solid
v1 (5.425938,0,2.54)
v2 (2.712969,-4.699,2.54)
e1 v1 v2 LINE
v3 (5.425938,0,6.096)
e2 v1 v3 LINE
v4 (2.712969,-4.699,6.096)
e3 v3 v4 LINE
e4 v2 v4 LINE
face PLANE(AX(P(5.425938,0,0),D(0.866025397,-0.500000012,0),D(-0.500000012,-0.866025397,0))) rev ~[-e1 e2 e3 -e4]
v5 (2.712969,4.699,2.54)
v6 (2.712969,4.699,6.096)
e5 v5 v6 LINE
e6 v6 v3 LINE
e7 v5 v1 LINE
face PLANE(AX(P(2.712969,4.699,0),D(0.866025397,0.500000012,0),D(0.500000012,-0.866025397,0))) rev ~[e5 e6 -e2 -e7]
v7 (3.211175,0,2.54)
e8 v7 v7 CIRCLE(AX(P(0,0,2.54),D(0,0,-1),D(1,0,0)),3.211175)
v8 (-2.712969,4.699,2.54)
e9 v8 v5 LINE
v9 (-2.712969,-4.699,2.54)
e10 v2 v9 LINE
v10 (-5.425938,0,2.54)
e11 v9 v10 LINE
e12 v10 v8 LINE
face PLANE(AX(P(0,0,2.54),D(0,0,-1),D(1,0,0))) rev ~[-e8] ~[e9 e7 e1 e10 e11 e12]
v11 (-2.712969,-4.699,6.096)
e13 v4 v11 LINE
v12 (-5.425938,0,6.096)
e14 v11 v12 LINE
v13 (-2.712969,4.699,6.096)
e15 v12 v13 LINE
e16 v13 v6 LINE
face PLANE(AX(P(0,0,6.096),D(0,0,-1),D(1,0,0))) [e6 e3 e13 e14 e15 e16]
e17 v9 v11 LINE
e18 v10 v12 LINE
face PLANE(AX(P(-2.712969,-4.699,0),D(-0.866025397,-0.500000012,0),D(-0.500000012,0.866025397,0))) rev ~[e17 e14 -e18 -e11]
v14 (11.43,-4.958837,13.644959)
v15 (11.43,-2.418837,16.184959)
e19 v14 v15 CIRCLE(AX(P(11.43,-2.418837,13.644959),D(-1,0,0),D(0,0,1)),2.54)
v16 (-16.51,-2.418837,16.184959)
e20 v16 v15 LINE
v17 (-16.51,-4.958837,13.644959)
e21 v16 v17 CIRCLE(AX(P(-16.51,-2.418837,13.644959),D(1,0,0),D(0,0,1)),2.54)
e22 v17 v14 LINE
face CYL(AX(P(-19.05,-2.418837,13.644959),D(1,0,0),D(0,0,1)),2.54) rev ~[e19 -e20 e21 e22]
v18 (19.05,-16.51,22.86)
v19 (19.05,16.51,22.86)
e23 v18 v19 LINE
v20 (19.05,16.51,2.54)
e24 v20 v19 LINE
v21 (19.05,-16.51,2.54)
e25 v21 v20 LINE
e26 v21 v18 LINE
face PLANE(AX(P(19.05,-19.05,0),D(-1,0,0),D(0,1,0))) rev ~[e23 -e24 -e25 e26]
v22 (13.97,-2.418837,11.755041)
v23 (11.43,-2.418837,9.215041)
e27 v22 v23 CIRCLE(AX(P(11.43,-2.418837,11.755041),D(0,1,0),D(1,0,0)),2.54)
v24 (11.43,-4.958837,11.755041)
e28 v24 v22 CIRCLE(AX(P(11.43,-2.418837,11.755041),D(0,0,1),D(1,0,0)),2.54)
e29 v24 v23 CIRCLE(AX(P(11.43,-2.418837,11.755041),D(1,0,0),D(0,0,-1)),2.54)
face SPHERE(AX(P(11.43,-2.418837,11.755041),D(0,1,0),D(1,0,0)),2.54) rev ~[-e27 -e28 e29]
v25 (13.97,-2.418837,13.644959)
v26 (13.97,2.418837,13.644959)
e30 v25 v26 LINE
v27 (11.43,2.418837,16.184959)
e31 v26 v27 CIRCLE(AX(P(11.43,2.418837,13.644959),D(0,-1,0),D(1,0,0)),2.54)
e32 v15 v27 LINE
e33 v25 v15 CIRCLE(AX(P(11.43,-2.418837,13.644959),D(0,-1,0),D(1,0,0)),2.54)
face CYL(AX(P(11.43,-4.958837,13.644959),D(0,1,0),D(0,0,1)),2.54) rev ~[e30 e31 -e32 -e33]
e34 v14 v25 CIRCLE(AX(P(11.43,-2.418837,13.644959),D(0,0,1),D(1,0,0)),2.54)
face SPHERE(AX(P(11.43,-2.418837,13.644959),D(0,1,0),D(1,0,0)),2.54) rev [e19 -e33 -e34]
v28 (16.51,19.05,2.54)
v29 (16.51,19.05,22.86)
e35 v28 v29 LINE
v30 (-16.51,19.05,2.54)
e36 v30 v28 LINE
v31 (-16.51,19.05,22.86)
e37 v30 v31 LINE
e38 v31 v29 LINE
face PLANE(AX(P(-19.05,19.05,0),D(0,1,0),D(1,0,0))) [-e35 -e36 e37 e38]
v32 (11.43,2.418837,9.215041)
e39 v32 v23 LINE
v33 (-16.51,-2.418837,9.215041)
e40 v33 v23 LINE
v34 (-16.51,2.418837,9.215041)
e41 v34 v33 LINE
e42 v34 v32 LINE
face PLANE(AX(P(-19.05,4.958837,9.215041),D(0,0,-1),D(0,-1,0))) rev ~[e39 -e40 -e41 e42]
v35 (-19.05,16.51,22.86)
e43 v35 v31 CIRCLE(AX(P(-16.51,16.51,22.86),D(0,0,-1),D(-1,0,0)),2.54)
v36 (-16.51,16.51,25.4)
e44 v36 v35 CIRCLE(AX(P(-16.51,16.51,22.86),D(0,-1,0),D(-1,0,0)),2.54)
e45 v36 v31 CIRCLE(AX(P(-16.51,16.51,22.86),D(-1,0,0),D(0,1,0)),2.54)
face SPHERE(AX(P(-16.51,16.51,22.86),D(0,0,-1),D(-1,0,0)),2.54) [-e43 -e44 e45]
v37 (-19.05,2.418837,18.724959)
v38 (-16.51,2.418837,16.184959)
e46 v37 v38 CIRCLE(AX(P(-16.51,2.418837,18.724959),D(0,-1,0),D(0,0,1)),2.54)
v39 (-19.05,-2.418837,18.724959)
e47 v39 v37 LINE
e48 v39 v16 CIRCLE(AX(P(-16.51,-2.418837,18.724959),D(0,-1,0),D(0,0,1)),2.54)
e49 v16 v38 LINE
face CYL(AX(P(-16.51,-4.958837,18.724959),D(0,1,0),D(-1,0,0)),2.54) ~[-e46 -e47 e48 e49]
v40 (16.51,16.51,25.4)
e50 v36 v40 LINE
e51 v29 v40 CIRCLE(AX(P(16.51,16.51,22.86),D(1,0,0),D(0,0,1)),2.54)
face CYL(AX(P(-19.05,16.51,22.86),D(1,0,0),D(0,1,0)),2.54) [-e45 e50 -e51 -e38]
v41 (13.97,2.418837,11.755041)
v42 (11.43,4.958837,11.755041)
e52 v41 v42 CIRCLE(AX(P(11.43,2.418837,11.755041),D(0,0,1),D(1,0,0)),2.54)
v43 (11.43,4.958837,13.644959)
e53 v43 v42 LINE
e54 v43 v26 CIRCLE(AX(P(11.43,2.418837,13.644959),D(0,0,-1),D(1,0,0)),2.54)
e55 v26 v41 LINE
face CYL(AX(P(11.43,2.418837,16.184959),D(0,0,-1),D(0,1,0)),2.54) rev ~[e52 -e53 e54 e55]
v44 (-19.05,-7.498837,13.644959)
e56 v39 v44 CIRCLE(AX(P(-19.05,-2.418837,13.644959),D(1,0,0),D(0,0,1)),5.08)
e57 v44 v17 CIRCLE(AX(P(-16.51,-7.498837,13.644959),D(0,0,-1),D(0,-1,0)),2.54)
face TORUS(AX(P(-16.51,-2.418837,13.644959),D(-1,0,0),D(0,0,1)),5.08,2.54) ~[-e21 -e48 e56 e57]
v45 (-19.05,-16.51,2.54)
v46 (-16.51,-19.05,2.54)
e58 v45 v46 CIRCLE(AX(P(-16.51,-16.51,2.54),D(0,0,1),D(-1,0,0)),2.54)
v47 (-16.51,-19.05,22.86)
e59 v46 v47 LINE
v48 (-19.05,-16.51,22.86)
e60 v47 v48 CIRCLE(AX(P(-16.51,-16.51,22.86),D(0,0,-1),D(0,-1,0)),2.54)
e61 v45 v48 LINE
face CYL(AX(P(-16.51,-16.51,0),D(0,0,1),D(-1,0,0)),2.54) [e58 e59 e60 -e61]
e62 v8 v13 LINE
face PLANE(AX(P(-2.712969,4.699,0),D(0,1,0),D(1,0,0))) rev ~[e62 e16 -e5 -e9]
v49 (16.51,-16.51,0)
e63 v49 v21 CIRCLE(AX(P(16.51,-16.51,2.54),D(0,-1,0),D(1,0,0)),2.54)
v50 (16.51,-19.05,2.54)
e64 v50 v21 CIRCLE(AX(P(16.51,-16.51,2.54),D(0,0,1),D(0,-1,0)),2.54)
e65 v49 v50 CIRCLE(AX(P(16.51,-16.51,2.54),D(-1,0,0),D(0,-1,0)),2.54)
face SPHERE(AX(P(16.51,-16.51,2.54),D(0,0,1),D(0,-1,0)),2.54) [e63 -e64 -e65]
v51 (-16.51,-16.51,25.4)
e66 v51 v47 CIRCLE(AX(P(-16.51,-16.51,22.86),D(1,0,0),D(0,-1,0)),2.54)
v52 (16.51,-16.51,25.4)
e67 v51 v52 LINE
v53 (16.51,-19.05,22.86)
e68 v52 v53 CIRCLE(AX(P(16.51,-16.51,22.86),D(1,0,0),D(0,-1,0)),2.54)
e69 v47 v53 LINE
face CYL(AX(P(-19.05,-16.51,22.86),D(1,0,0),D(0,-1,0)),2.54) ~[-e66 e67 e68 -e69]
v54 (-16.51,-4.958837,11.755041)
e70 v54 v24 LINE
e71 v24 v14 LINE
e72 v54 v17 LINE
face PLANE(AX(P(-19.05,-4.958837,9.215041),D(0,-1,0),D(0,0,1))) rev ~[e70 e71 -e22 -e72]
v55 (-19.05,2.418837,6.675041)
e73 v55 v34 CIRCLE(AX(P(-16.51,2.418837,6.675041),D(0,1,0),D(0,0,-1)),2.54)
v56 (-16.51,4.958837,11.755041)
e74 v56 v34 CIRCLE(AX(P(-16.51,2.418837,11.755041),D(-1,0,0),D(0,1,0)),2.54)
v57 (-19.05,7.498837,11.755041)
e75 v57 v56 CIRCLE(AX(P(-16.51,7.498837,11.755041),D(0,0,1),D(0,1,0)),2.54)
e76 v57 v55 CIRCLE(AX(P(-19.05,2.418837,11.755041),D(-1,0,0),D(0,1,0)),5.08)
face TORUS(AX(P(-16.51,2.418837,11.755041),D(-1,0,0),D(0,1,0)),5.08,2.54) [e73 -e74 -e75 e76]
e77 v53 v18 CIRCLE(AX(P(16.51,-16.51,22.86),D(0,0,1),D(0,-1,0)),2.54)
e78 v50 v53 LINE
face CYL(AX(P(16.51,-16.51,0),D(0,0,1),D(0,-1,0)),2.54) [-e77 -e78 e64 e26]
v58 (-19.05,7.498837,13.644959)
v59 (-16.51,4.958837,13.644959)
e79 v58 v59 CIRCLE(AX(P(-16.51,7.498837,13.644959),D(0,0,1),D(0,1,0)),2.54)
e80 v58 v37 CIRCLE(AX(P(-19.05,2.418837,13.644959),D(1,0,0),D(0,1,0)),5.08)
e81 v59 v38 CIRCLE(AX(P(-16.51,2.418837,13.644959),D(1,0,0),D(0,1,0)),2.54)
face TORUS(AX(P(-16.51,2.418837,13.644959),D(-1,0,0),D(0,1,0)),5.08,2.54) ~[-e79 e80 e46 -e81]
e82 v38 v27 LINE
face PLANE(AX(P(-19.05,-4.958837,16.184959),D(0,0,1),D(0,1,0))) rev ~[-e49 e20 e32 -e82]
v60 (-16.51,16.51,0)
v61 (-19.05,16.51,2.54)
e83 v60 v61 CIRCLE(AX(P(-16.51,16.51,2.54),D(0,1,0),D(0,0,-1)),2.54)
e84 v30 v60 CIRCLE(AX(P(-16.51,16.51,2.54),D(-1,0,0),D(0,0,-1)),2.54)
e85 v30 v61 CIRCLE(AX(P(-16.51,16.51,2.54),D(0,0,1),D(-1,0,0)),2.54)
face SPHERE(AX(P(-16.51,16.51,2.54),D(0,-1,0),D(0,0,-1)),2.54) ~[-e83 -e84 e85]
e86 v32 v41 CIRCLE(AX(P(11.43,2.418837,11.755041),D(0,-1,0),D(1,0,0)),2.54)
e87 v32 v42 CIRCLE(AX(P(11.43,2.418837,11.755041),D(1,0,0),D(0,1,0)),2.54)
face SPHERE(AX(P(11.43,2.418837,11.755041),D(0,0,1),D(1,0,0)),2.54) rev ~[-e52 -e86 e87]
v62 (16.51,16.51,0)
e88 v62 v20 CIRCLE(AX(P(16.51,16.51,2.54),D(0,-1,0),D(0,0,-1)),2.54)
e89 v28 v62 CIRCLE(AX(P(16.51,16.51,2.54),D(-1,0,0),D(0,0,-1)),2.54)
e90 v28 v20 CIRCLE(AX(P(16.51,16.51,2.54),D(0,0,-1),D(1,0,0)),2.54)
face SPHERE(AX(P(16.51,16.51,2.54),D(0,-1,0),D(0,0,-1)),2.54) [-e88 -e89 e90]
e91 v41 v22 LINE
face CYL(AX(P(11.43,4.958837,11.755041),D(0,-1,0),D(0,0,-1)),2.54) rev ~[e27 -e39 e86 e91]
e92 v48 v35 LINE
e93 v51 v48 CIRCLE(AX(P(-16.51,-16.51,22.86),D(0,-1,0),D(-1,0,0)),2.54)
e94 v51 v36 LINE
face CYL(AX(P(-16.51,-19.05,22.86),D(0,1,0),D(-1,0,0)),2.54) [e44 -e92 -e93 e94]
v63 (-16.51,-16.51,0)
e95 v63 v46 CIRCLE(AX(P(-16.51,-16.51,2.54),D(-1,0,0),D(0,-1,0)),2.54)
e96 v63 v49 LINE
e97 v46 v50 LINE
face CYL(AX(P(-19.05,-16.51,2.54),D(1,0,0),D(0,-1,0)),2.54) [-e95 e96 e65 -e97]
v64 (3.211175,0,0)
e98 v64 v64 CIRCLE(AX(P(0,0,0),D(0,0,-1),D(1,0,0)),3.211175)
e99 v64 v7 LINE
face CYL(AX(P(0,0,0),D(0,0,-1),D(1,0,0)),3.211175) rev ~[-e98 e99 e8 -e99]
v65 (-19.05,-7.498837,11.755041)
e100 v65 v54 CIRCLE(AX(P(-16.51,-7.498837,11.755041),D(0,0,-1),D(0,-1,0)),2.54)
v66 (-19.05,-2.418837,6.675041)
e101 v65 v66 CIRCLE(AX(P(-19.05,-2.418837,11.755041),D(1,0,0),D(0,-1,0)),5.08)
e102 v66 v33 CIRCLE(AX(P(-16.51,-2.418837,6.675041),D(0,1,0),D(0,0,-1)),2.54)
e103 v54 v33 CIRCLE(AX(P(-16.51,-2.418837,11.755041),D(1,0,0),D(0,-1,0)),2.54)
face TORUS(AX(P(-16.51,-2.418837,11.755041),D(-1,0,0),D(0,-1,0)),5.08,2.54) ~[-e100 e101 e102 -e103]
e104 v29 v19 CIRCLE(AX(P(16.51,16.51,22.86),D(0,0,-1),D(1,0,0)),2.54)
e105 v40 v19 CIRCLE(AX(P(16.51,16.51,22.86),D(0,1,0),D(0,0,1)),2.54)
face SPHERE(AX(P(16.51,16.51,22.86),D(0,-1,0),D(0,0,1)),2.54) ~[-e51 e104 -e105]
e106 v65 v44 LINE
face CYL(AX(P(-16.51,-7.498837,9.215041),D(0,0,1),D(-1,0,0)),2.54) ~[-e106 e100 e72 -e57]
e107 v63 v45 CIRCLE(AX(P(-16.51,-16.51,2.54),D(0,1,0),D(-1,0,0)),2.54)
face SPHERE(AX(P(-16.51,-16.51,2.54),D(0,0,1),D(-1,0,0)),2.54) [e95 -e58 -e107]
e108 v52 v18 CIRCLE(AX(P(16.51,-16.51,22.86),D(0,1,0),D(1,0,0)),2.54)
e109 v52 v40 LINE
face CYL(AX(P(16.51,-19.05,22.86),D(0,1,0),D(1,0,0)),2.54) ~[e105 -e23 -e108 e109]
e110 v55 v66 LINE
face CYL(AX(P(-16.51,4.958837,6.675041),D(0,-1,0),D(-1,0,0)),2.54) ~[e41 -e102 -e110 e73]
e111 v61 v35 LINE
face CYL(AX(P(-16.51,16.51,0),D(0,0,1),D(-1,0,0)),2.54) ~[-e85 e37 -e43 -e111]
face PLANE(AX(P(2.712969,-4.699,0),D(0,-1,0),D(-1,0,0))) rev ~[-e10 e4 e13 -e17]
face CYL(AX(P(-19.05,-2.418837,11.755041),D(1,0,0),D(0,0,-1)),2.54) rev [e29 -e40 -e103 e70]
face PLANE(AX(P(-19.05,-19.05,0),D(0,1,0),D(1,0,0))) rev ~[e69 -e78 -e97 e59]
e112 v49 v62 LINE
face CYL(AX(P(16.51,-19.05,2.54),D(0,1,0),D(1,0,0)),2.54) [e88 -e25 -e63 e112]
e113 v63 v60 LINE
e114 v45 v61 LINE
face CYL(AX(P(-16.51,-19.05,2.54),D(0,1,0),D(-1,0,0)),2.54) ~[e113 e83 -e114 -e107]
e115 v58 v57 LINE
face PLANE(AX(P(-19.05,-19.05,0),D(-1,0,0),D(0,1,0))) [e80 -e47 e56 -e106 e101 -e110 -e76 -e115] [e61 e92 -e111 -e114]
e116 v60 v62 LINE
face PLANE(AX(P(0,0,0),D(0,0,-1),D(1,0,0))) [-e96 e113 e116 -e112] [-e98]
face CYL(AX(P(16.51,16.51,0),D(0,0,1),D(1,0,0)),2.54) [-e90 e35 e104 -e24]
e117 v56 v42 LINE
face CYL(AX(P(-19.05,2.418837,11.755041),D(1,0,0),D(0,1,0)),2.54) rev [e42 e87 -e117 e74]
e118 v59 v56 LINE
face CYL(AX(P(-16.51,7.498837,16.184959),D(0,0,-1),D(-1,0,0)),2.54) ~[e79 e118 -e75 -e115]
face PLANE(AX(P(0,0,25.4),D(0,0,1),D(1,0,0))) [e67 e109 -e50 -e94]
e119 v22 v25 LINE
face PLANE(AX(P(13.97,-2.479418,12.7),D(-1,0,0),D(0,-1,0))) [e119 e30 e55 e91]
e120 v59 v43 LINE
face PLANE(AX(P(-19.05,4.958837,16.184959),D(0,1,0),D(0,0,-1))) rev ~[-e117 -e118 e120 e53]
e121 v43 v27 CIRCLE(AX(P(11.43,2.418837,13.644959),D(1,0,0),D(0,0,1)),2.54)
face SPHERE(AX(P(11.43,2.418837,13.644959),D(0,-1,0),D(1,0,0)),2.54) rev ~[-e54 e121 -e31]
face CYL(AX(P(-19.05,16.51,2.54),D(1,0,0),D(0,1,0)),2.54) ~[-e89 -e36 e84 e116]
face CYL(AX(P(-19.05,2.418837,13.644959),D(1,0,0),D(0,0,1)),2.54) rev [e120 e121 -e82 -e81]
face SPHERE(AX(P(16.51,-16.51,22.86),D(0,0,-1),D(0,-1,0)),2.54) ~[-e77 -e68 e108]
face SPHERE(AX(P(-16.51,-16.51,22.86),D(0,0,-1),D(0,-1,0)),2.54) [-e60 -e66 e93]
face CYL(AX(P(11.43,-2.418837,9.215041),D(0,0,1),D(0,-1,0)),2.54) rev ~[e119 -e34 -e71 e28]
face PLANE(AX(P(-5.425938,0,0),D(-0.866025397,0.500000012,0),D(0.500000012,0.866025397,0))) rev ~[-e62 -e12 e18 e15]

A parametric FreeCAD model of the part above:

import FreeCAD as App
import Part
import Sketcher
from FreeCAD import Vector
Q = App.Units.Quantity


def edges_at(feature, points):
    """Names of the edges that pass closest to the given points."""
    edges = feature.Shape.Edges
    near = lambda p: min(range(len(edges)), key=lambda i: edges[i].distToShape(Part.Vertex(*p))[0])
    return sorted({f"Edge{near(p) + 1}" for p in points})


def add_polygon(sketch, points):
    """Adds a closed chain of lines whose ends are joined by coincident constraints."""
    first, n = sketch.GeometryCount, len(points)
    for a, b in zip(points, points[1:] + points[:1]):
        sketch.addGeometry(Part.LineSegment(App.Vector(*a, 0), App.Vector(*b, 0)), False)
    for i in range(n):
        sketch.addConstraint(Sketcher.Constraint("Coincident", first + i, 2, first + (i + 1) % n, 1))

doc = App.newDocument("Part")
params = doc.addObject("Spreadsheet::Sheet", "Params")
for row, (alias, value) in enumerate([
    ("sketch1_width", "1.5 in"),
    ("pad1_length", "1 in"),
    ("fillet_radius", "0.1 in"),
    ("pocket1_length", "1.3 in"),
    ("pocket2_length", "0.24 in"),
    ("pad2_length", "0.1 in"),
    ("fillet2_radius", "0.1 in"),
    ("pocket3_length", "0.2 in"),
], start=1):
    params.set(f"A{row}", alias)
    params.set(f"B{row}", "=" + value)
    params.setAlias(f"B{row}", alias)

body = doc.addObject("PartDesign::Body", "Body")

# Sketch on XY plane
sketch1 = body.newObject("Sketcher::SketchObject", "Sketch")
sketch1.AttachmentSupport = (doc.getObject("XY_Plane"), [""])
sketch1.MapMode = "FlatFace"
add_polygon(sketch1, [(-19, 19), (-19, -19), (19, -19), (19, 19)])  # lines 0-3
sketch1.addConstraint([
    Sketcher.Constraint("Vertical", 0),
    Sketcher.Constraint("Horizontal", 1),
    Sketcher.Constraint("Vertical", 2),
    Sketcher.Constraint("Horizontal", 3),
    Sketcher.Constraint("Symmetric", 0, 2, 2, 2, -1, 1),
    Sketcher.Constraint("Equal", 3, 0),
    Sketcher.Constraint("DistanceX", 1, 1, 1, 2, Q("1.5 in")),
])
sketch1.setExpression("Constraints[10]", "Params.sketch1_width")
pad1 = body.newObject("PartDesign::Pad", "Pad")
pad1.Profile = sketch1
pad1.setExpression("Length", "Params.pad1_length")
doc.recompute()

fillet = body.newObject("PartDesign::Fillet", "Fillet")
fillet.Base = (pad1, ["Edge1"])
fillet.UseAllEdges = True
fillet.setExpression("Radius", "Params.fillet_radius")

# Sketch on YZ plane
sketch2 = body.newObject("Sketcher::SketchObject", "Sketch001")
sketch2.AttachmentSupport = (doc.getObject("YZ_Plane"), [""])
sketch2.MapMode = "FlatFace"
sketch2.AttachmentOffset = App.Placement(Vector(0, 0, -0.75 * 25.4), App.Rotation())
add_polygon(sketch2, [(-5, 16), (5, 16), (5, 9), (-5, 9)])  # lines 0-3
sketch2.addConstraint([
    Sketcher.Constraint("Horizontal", 0),
    Sketcher.Constraint("Vertical", 1),
    Sketcher.Constraint("Horizontal", 2),
    Sketcher.Constraint("Vertical", 3),
    Sketcher.Constraint("DistanceX", 0, 1, 0, 2, Q("9.917674 mm")),
    Sketcher.Constraint("DistanceY", 1, 2, 1, 1, Q("6.969918 mm")),
    Sketcher.Constraint("DistanceY", -1, 1, 0, 2, Q("16.184959 mm")),
    Sketcher.Constraint("DistanceX", -1, 1, 0, 2, Q("4.958837 mm")),
])
pocket1 = body.newObject("PartDesign::Pocket", "Pocket")
pocket1.Profile = sketch2
pocket1.setExpression("Length", "Params.pocket1_length")
pocket1.Reversed = True

# Sketch on XY plane
sketch3 = body.newObject("Sketcher::SketchObject", "Sketch002")
sketch3.AttachmentSupport = (doc.getObject("XY_Plane"), [""])
sketch3.MapMode = "FlatFace"
add_polygon(sketch3, [(-3, 5), (3, 5), (5, 0), (3, -5), (-3, -5), (-5, 0)])  # lines 0-5
sketch3.addConstraint([
    Sketcher.Constraint("Horizontal", 0),
    Sketcher.Constraint("Horizontal", 3),
    Sketcher.Constraint("Symmetric", 0, 2, 3, 2, -1, 1),
    Sketcher.Constraint("Symmetric", 1, 2, 4, 2, -1, 1),
    Sketcher.Constraint("PointOnObject", 1, 2, -1),
    Sketcher.Constraint("Parallel", 2, 5),
    Sketcher.Constraint("Vertical", 0, 2, 2, 2),
    Sketcher.Constraint("Angle", 1, Q("-59.999999 deg")),
    Sketcher.Constraint("DistanceY", 2, 2, 0, 2, Q("0.37 in")),
    Sketcher.Constraint("DistanceX", 0, 1, 0, 2, Q("5.425938 mm")),
])
pocket2 = body.newObject("PartDesign::Pocket", "Pocket001")
pocket2.Profile = sketch3
pocket2.setExpression("Length", "Params.pocket2_length")
pocket2.Reversed = True

# Sketch on XY plane
sketch4 = body.newObject("Sketcher::SketchObject", "Sketch003")
sketch4.AttachmentSupport = (doc.getObject("XY_Plane"), [""])
sketch4.MapMode = "FlatFace"
add_polygon(sketch4, [(-3, 5), (3, 5), (5, 0), (3, -5), (-3, -5), (-5, 0)])  # lines 0-5
sketch4.addConstraint([
    Sketcher.Constraint("Horizontal", 0),
    Sketcher.Constraint("Horizontal", 3),
    Sketcher.Constraint("Symmetric", 0, 2, 3, 2, -1, 1),
    Sketcher.Constraint("Symmetric", 1, 2, 4, 2, -1, 1),
    Sketcher.Constraint("PointOnObject", 1, 2, -1),
    Sketcher.Constraint("Parallel", 2, 5),
    Sketcher.Constraint("Vertical", 0, 2, 2, 2),
    Sketcher.Constraint("Angle", 1, Q("-59.999999 deg")),
    Sketcher.Constraint("DistanceY", 2, 2, 0, 2, Q("0.37 in")),
    Sketcher.Constraint("DistanceX", 0, 1, 0, 2, Q("5.425938 mm")),
])
pad2 = body.newObject("PartDesign::Pad", "Pad001")
pad2.Profile = sketch4
pad2.setExpression("Length", "Params.pad2_length")
doc.recompute()

fillet2 = body.newObject("PartDesign::Fillet", "Fillet001")
fillet2.Base = (pad2, edges_at(pad2, [
    (13.97, 0, 16.185),
    (13.97, 4.959, 12.7),
    (13.97, 0, 9.215),
    (13.97, -4.959, 12.7),
    (-2.54, 4.959, 16.185),
    (-2.54, 4.959, 9.215),
    (-19.05, 4.959, 12.7),
    (-2.54, -4.959, 16.185),
    (-19.05, 0, 16.185),
    (-2.54, -4.959, 9.215),
    (-19.05, -4.959, 12.7),
    (-19.05, 0, 9.215),
]))
fillet2.setExpression("Radius", "Params.fillet2_radius")

# Sketch on XY plane
sketch5 = body.newObject("Sketcher::SketchObject", "Sketch004")
sketch5.AttachmentSupport = (doc.getObject("XY_Plane"), [""])
sketch5.MapMode = "FlatFace"
sketch5.addGeometry(Part.Circle(Vector(0, 0, 0), Vector(0, 0, 1), 3.2), False)
sketch5.addConstraint([
    Sketcher.Constraint("Coincident", 0, 3, -1, 1),
    Sketcher.Constraint("Diameter", 0, Q("6.42235 mm")),
])
pocket3 = body.newObject("PartDesign::Pocket", "Pocket002")
pocket3.Profile = sketch5
pocket3.setExpression("Length", "Params.pocket3_length")
pocket3.Reversed = True

doc.recompute()
